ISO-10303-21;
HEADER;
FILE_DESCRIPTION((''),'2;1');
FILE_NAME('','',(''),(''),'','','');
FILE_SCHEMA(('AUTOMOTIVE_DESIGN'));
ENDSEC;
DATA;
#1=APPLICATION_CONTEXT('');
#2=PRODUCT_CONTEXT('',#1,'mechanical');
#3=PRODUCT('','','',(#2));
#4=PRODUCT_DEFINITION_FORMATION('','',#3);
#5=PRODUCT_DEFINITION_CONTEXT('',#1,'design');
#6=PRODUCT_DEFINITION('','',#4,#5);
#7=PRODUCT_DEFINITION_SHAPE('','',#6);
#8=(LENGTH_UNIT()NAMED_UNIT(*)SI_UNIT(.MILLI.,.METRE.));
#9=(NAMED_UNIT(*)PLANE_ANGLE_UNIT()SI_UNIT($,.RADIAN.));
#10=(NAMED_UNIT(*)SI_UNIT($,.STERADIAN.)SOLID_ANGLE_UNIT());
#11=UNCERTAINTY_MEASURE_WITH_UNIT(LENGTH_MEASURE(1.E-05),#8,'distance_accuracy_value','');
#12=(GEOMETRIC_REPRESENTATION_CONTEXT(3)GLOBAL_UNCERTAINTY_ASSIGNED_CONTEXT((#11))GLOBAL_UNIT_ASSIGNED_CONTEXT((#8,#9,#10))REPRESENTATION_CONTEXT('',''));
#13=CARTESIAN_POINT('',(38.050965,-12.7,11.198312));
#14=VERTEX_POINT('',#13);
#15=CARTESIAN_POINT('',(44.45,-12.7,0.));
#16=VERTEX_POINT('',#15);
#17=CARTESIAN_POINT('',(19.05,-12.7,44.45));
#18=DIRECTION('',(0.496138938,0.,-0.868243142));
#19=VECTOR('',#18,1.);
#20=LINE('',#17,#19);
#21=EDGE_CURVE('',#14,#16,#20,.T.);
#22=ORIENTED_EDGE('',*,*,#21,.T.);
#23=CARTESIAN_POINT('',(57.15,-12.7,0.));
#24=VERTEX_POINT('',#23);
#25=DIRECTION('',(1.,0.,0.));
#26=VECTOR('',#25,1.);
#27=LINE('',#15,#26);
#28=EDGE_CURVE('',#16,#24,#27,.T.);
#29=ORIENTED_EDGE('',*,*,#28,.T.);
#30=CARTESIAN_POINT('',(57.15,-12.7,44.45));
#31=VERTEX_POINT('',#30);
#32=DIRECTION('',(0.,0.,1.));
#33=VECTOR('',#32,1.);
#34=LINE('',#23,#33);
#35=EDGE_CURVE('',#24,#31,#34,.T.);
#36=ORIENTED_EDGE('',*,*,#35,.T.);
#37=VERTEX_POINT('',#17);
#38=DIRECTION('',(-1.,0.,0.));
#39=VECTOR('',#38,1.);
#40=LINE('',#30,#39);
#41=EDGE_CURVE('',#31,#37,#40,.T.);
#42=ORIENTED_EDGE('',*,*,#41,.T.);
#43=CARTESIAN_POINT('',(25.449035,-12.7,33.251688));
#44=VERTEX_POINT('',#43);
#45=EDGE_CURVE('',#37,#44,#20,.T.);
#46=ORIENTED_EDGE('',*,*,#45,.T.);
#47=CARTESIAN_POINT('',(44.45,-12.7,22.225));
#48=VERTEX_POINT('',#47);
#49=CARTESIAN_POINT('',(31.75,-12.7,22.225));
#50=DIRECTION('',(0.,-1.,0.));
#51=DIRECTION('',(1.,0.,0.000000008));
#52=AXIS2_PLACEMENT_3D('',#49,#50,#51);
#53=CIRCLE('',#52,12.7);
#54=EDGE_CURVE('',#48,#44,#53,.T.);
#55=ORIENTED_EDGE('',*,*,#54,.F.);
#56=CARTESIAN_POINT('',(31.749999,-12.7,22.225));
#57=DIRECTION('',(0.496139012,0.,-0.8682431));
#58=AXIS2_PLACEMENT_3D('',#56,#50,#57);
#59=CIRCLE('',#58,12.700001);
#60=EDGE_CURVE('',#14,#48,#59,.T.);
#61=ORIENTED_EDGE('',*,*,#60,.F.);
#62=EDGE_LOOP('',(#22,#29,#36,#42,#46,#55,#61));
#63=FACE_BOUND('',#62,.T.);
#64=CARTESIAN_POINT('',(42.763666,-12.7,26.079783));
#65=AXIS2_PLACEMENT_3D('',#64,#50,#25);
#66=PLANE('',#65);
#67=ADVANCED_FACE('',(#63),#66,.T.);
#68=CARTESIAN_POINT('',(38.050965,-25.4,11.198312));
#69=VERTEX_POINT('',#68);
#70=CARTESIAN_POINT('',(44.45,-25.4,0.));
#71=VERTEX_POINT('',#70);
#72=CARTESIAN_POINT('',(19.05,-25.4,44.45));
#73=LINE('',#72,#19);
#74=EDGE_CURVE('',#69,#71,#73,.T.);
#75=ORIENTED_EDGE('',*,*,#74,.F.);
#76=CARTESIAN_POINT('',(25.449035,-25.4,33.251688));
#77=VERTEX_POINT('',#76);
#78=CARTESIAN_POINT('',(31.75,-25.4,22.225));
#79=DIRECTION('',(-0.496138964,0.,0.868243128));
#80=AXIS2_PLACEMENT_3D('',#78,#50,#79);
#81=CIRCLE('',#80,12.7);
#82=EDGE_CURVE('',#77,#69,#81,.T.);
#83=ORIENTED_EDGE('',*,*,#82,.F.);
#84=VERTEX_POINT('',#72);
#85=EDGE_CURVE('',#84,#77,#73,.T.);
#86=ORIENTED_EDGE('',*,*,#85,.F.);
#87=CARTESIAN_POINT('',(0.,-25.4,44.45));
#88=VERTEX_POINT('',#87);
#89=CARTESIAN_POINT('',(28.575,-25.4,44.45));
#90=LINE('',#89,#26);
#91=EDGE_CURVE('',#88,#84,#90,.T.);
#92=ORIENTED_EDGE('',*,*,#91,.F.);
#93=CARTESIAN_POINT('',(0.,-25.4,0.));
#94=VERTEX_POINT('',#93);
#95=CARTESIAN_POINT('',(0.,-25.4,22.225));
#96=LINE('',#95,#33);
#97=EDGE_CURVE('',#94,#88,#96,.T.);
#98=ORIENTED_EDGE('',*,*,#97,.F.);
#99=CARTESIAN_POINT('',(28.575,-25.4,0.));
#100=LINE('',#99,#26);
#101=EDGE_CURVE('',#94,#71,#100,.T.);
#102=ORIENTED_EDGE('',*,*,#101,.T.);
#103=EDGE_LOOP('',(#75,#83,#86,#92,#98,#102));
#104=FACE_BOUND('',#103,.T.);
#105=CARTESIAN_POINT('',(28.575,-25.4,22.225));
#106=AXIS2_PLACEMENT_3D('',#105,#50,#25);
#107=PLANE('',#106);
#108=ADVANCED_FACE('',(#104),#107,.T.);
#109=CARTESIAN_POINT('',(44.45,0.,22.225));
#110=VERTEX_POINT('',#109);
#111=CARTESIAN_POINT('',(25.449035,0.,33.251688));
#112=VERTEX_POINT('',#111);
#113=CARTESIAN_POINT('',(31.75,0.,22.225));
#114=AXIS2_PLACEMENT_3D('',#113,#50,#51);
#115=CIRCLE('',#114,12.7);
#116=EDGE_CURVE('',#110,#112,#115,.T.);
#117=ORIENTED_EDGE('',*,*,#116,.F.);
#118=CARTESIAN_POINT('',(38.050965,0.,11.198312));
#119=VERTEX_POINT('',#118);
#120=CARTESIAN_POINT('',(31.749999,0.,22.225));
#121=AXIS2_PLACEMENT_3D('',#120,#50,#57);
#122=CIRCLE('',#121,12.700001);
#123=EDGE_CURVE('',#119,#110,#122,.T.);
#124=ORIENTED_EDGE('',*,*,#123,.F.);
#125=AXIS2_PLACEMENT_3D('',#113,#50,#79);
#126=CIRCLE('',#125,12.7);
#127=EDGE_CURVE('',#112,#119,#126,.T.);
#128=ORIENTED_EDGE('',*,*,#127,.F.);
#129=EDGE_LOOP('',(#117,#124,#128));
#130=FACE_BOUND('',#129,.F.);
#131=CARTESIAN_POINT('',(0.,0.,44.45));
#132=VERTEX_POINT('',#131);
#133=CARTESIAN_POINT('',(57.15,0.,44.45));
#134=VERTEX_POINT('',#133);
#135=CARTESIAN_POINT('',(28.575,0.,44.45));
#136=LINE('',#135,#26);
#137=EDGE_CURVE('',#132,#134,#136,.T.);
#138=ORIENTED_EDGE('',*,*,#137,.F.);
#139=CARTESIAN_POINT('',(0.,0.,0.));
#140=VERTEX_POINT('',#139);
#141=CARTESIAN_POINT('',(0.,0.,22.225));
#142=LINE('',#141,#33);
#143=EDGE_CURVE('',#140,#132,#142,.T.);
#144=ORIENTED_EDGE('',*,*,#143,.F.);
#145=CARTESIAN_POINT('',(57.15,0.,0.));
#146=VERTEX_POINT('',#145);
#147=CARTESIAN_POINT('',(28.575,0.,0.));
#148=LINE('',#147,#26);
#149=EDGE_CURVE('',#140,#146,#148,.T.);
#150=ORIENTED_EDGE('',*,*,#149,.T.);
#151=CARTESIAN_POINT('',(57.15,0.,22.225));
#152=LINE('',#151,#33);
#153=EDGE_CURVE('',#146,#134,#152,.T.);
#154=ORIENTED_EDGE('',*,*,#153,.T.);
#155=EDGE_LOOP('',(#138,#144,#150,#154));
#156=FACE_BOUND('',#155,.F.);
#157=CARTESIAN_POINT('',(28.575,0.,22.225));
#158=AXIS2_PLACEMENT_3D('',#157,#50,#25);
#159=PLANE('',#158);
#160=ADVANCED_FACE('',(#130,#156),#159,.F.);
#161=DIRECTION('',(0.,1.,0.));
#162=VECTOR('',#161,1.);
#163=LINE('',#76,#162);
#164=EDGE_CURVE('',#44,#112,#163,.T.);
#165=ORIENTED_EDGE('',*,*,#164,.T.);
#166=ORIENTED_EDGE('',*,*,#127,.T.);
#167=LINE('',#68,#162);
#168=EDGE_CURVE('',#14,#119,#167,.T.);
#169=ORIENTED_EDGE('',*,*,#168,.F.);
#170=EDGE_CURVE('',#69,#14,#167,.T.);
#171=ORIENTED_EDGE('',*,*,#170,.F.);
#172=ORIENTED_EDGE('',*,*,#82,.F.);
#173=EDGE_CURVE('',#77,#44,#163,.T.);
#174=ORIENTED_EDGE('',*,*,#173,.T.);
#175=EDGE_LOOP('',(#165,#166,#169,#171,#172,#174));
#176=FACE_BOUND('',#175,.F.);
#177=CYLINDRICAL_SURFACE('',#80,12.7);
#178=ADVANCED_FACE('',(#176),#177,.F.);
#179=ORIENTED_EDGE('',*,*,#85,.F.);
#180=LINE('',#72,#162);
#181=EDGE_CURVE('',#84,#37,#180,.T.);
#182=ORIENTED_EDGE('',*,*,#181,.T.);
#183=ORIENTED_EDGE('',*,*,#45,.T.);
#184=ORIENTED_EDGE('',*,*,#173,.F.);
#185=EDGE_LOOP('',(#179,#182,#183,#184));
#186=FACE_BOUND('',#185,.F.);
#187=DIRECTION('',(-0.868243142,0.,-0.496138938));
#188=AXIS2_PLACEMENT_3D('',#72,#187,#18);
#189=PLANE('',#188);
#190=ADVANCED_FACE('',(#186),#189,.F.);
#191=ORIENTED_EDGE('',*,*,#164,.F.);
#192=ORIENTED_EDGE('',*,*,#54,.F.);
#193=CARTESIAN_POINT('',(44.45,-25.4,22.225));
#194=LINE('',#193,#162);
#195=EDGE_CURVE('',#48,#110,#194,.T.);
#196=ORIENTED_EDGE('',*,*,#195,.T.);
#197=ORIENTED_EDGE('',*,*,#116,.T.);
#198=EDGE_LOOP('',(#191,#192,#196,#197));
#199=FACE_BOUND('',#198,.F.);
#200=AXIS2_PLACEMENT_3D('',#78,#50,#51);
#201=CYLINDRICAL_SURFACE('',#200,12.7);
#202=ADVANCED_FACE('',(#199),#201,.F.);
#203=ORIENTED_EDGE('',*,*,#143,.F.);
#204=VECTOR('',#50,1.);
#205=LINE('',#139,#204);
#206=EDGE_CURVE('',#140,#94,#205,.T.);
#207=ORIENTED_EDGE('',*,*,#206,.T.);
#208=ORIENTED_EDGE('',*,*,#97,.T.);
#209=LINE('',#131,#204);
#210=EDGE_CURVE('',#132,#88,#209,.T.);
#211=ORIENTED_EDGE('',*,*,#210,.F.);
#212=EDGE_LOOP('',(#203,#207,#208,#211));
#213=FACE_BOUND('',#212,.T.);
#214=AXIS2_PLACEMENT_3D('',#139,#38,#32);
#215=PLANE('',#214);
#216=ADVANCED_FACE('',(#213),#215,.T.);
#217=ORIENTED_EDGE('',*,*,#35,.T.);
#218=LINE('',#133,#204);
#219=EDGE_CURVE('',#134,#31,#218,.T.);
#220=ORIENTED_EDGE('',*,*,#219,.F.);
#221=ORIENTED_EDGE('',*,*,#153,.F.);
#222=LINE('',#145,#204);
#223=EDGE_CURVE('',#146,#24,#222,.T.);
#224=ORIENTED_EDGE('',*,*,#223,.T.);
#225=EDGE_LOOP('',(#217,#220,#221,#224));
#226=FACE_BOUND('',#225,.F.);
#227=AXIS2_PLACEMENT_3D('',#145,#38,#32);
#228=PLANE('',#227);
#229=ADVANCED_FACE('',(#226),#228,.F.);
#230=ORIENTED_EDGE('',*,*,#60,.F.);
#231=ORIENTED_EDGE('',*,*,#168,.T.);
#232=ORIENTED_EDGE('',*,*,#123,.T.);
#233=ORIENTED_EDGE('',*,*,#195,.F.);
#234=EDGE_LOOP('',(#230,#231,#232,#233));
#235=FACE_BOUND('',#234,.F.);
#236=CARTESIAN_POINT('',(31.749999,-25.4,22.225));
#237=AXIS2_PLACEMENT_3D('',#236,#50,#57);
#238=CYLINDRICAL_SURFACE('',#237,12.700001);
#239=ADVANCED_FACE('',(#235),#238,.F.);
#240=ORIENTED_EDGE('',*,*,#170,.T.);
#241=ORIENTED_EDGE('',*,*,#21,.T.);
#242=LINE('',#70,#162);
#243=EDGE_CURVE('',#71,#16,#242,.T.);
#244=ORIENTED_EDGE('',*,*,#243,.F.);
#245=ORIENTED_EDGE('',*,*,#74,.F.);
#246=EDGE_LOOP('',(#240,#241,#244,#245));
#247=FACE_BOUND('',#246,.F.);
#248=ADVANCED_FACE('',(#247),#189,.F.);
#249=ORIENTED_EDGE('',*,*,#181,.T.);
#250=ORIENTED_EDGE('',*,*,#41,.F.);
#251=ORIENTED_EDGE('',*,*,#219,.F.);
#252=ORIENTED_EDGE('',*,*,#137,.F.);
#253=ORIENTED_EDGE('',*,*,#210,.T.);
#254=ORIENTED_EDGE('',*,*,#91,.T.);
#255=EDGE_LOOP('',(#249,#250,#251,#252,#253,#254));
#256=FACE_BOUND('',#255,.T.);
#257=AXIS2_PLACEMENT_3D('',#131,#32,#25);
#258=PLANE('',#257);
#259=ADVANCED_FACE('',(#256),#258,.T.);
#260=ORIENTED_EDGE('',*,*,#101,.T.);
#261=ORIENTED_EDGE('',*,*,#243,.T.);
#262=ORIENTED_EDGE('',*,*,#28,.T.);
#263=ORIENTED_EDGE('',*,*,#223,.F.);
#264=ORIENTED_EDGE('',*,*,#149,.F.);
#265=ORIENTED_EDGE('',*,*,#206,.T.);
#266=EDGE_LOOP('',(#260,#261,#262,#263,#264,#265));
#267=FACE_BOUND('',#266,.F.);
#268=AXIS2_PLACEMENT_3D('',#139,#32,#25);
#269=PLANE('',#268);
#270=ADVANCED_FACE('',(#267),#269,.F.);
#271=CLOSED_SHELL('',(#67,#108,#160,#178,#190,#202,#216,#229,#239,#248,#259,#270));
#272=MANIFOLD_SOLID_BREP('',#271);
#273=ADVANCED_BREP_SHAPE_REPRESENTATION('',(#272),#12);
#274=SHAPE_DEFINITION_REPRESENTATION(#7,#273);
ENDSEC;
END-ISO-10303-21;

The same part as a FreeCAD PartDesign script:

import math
import FreeCAD as App
import Part
import Sketcher
Q = App.Units.Quantity


def add_polygon(sketch, points):
    """Adds a closed chain of lines whose ends are joined by coincident constraints."""
    first, n = sketch.GeometryCount, len(points)
    for a, b in zip(points, points[1:] + points[:1]):
        sketch.addGeometry(Part.LineSegment(App.Vector(*a, 0), App.Vector(*b, 0)), False)
    for i in range(n):
        sketch.addConstraint(Sketcher.Constraint("Coincident", first + i, 2, first + (i + 1) % n, 1))

doc = App.newDocument("Part")
params = doc.addObject("Spreadsheet::Sheet", "Params")
for row, (alias, value) in enumerate([
    ("sketch1_width", "2.25 in"),
    ("sketch1_height", "1.75 in"),
    ("pad1_length", "1 in"),
    ("sketch2_width", "1.5 in"),
    ("sketch2_width2", "0.5 in"),
    ("sketch2_height", "1.75 in"),
    ("pocket1_length", "0.5 in"),
    ("sketch3_radius", "0.5 in"),
], start=1):
    params.set(f"A{row}", alias)
    params.set(f"B{row}", "=" + value)
    params.setAlias(f"B{row}", alias)

body = doc.addObject("PartDesign::Body", "Body")

# Sketch on XZ plane
sketch1 = body.newObject("Sketcher::SketchObject", "Sketch")
sketch1.AttachmentSupport = (doc.getObject("XZ_Plane"), [""])
sketch1.MapMode = "FlatFace"
add_polygon(sketch1, [(0, 44.45), (0, 0), (57.15, 0), (57.15, 44.45)])  # lines 0-3
sketch1.addConstraint(Sketcher.Constraint("Vertical", 0))
sketch1.addConstraint(Sketcher.Constraint("Horizontal", 1))
sketch1.addConstraint(Sketcher.Constraint("Vertical", 2))
sketch1.addConstraint(Sketcher.Constraint("Horizontal", 3))
sketch1.addConstraint(Sketcher.Constraint("Coincident", 0, 2, -1, 1))
sketch1.addConstraint(Sketcher.Constraint("DistanceX", 1, 1, 1, 2, Q("2.25 in")))
sketch1.addConstraint(Sketcher.Constraint("DistanceY", 0, 2, 0, 1, Q("1.75 in")))
sketch1.setExpression("Constraints[9]", "Params.sketch1_width")
sketch1.setExpression("Constraints[10]", "Params.sketch1_height")
pad1 = body.newObject("PartDesign::Pad", "Pad")
pad1.Profile = sketch1
pad1.setExpression("Length", "Params.pad1_length")

# Sketch on XZ plane
sketch2 = body.newObject("Sketcher::SketchObject", "Sketch001")
sketch2.AttachmentSupport = (doc.getObject("XZ_Plane"), [""])
sketch2.MapMode = "FlatFace"
sketch2.AttachmentOffset = App.Placement(App.Vector(0, 0, 1 * 25.4), App.Rotation())
add_polygon(sketch2, [(57.15, 44.45), (19.05, 44.45), (44.45, 0), (57.15, 0)])  # lines 0-3
sketch2.addConstraint(Sketcher.Constraint("Horizontal", 0))
sketch2.addConstraint(Sketcher.Constraint("Horizontal", 2))
sketch2.addConstraint(Sketcher.Constraint("Vertical", 3))
sketch2.addConstraint(Sketcher.Constraint("PointOnObject", 1, 2, -1))
sketch2.addConstraint(Sketcher.Constraint("DistanceX", 0, 2, 0, 1, Q("1.5 in")))
sketch2.addConstraint(Sketcher.Constraint("DistanceX", 2, 1, 2, 2, Q("0.5 in")))
sketch2.addConstraint(Sketcher.Constraint("DistanceY", 3, 1, 3, 2, Q("1.75 in")))
sketch2.addConstraint(Sketcher.Constraint("DistanceX", -1, 1, 0, 2, Q("0.75 in")))
sketch2.setExpression("Constraints[8]", "Params.sketch2_width")
sketch2.setExpression("Constraints[9]", "Params.sketch2_width2")
sketch2.setExpression("Constraints[10]", "Params.sketch2_height")
pocket1 = body.newObject("PartDesign::Pocket", "Pocket")
pocket1.Profile = sketch2
pocket1.setExpression("Length", "Params.pocket1_length")

# Sketch on XZ plane
sketch3 = body.newObject("Sketcher::SketchObject", "Sketch002")
sketch3.AttachmentSupport = (doc.getObject("XZ_Plane"), [""])
sketch3.MapMode = "FlatFace"
sketch3.AttachmentOffset = App.Placement(App.Vector(0, 0, 1 * 25.4), App.Rotation())
sketch3.addGeometry(Part.ArcOfCircle(Part.Circle(App.Vector(31.75, 22.225, 0), App.Vector(0, 0, 1), 12.7), math.radians(119.744883), math.radians(299.744883)), False)
sketch3.addGeometry(Part.ArcOfCircle(Part.Circle(App.Vector(31.749999, 22.225, 0), App.Vector(0, 0, 1), 12.700001), math.radians(-60.255114), math.radians(-0.000001)), False)
sketch3.addGeometry(Part.ArcOfCircle(Part.Circle(App.Vector(31.75, 22.225, 0), App.Vector(0, 0, 1), 12.7), math.radians(0), math.radians(119.744882)), False)
sketch3.addConstraint(Sketcher.Constraint("Tangent", 0, 2, 1, 1))
sketch3.addConstraint(Sketcher.Constraint("Tangent", 1, 2, 2, 1))
sketch3.addConstraint(Sketcher.Constraint("Tangent", 2, 2, 0, 1))
sketch3.addConstraint(Sketcher.Constraint("Horizontal", 2, 3, 1, 2))
sketch3.addConstraint(Sketcher.Constraint("Radius", 0, Q("0.5 in")))
sketch3.addConstraint(Sketcher.Constraint("DistanceX", -1, 1, 0, 3, Q("1.25 in")))
sketch3.addConstraint(Sketcher.Constraint("DistanceY", -1, 1, 0, 3, Q("0.875 in")))
sketch3.addConstraint(Sketcher.Constraint("DistanceY", -1, 1, 2, 2, Q("33.251688 mm")))
sketch3.addConstraint(Sketcher.Constraint("DistanceY", 0, 2, 1, 3, Q("11.026688 mm")))
sketch3.setExpression("Constraints[4]", "Params.sketch3_radius")
pocket2 = body.newObject("PartDesign::Pocket", "Pocket001")
pocket2.Profile = sketch3
pocket2.Type = "ThroughAll"

doc.recompute()
